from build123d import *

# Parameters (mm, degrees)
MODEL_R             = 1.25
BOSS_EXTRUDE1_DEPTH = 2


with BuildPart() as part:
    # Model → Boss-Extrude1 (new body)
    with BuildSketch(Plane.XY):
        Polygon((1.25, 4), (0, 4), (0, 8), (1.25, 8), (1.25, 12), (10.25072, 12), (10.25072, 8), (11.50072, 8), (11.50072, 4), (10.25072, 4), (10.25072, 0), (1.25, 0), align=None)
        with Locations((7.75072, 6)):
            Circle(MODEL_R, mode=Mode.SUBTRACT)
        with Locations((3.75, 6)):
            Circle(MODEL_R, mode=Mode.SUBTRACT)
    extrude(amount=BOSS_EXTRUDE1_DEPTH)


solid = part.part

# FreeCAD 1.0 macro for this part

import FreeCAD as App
import Part
import Sketcher
from FreeCAD import Vector
Q = App.Units.Quantity

doc = App.newDocument("Part")
params = doc.addObject("Spreadsheet::Sheet", "Params")
for row, (alias, value) in enumerate([
    ("sketch1_diameter", "2.5 mm"),
    ("sketch1_height", "4 mm"),
    ("sketch1_width", "1.25 mm"),
    ("pad1_length", "2 mm"),
], start=1):
    params.set(f"A{row}", alias)
    params.set(f"B{row}", "=" + value)
    params.setAlias(f"B{row}", alias)

body = doc.addObject("PartDesign::Body", "Body")

# Sketch on XY plane
sketch1 = doc.addObject("Sketcher::SketchObject", "Sketch")
body.addObject(sketch1)
sketch1.AttachmentSupport = (doc.XY_Plane, [""])
sketch1.MapMode = "FlatFace"
sketch1.addGeometry([
    Part.LineSegment(Vector(0, 4, 0), Vector(1.25, 4, 0)),  # 0
    Part.LineSegment(Vector(1.25, 4, 0), Vector(1.25, 0, 0)),  # 1
    Part.LineSegment(Vector(1.25, 0, 0), Vector(10.25072, 0, 0)),  # 2
    Part.LineSegment(Vector(10.25072, 0, 0), Vector(10.25072, 4, 0)),  # 3
    Part.LineSegment(Vector(10.25072, 4, 0), Vector(11.50072, 4, 0)),  # 4
    Part.LineSegment(Vector(11.50072, 4, 0), Vector(11.50072, 8, 0)),  # 5
    Part.LineSegment(Vector(11.50072, 8, 0), Vector(10.25072, 8, 0)),  # 6
    Part.LineSegment(Vector(10.25072, 8, 0), Vector(10.25072, 12, 0)),  # 7
    Part.LineSegment(Vector(10.25072, 12, 0), Vector(1.25, 12, 0)),  # 8
    Part.LineSegment(Vector(1.25, 12, 0), Vector(1.25, 8, 0)),  # 9
    Part.LineSegment(Vector(1.25, 8, 0), Vector(0, 8, 0)),  # 10
    Part.LineSegment(Vector(0, 8, 0), Vector(0, 4, 0)),  # 11
    Part.Circle(Vector(7.75072, 6, 0), Vector(0, 0, 1), 1.25),  # 12
    Part.Circle(Vector(3.75, 6, 0), Vector(0, 0, 1), 1.25),  # 13
], False)
sketch1.addConstraint([
    Sketcher.Constraint("Coincident", 0, 2, 1, 1),
    Sketcher.Constraint("Coincident", 1, 2, 2, 1),
    Sketcher.Constraint("Coincident", 2, 2, 3, 1),
    Sketcher.Constraint("Coincident", 3, 2, 4, 1),
    Sketcher.Constraint("Coincident", 4, 2, 5, 1),
    Sketcher.Constraint("Coincident", 5, 2, 6, 1),
    Sketcher.Constraint("Coincident", 6, 2, 7, 1),
    Sketcher.Constraint("Coincident", 7, 2, 8, 1),
    Sketcher.Constraint("Coincident", 8, 2, 9, 1),
    Sketcher.Constraint("Coincident", 9, 2, 10, 1),
    Sketcher.Constraint("Coincident", 10, 2, 11, 1),
    Sketcher.Constraint("Coincident", 11, 2, 0, 1),
    Sketcher.Constraint("Horizontal", 0),
    Sketcher.Constraint("Vertical", 1),
    Sketcher.Constraint("Horizontal", 2),
    Sketcher.Constraint("Vertical", 3),
    Sketcher.Constraint("Horizontal", 4),
    Sketcher.Constraint("Vertical", 5),
    Sketcher.Constraint("Horizontal", 6),
    Sketcher.Constraint("Vertical", 7),
    Sketcher.Constraint("Horizontal", 8),
    Sketcher.Constraint("Vertical", 9),
    Sketcher.Constraint("Horizontal", 10),
    Sketcher.Constraint("Vertical", 11),
    Sketcher.Constraint("Equal", 12, 13),
    Sketcher.Constraint("PointOnObject", 1, 2, -1),
    Sketcher.Constraint("PointOnObject", 10, 2, -2),
    Sketcher.Constraint("Horizontal", 12, 3, 13, 3),
    Sketcher.Constraint("Horizontal", 0, 2, 3, 2),
    Sketcher.Constraint("Horizontal", 6, 2, 9, 2),
    Sketcher.Constraint("Vertical", 3, 2, 6, 2),
    Sketcher.Constraint("Vertical", 1, 2, 8, 2),
    Sketcher.Constraint("Equal", 0, 4),
    Sketcher.Constraint("Equal", 3, 5),
    Sketcher.Constraint("Equal", 5, 7),
    Sketcher.Constraint("Diameter", 12, Q("2.5 mm")),
    Sketcher.Constraint("DistanceY", 1, 2, 1, 1, Q("4 mm")),
    Sketcher.Constraint("DistanceY", -1, 1, 12, 3, Q("6 mm")),
    Sketcher.Constraint("DistanceX", 0, 1, 0, 2, Q("1.25 mm")),
    Sketcher.Constraint("DistanceX", 0, 2, 13, 3, Q("2.5 mm")),
    Sketcher.Constraint("DistanceX", 12, 3, 2, 2, Q("2.5 mm")),
    Sketcher.Constraint("DistanceX", 2, 1, 2, 2, Q("9.00072 mm")),
])
sketch1.setExpression("Constraints[35]", "Params.sketch1_diameter")
sketch1.setExpression("Constraints[36]", "Params.sketch1_height")
sketch1.setExpression("Constraints[38]", "Params.sketch1_width")
pad1 = doc.addObject("PartDesign::Pad", "Pad")
body.addObject(pad1)
pad1.Profile = sketch1
pad1.setExpression("Length", "Params.pad1_length")

doc.recompute()
